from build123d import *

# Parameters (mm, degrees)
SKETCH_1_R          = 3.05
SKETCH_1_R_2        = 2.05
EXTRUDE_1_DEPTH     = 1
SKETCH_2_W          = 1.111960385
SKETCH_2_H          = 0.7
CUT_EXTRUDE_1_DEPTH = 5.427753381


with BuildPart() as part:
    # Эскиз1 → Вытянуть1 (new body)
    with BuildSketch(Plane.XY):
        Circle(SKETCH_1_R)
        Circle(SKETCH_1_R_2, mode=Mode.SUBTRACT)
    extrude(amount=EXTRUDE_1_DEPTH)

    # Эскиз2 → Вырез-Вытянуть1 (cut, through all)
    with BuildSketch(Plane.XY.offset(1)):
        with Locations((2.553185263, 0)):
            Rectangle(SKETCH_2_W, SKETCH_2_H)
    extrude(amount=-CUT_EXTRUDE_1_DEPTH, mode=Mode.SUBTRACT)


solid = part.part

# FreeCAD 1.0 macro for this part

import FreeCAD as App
import Part
import Sketcher
Q = App.Units.Quantity

doc = App.newDocument("Part")
body = doc.addObject("PartDesign::Body", "Body")

sketch1 = doc.addObject("Sketcher::SketchObject", "Sketch")
body.addObject(sketch1)
sketch1.AttachmentSupport = (doc.XY_Plane, [""])
sketch1.MapMode = "FlatFace"
sketch1.addGeometry([
    Part.Circle(App.Vector(0, 0, 0), App.Vector(0, 0, 1), 3),
    Part.Circle(App.Vector(0, 0, 0), App.Vector(0, 0, 1), 2),
], False)
sketch1.addConstraint([
    Sketcher.Constraint("Coincident", 0, 3, -1, 1),
    Sketcher.Constraint("Coincident", 1, 3, -1, 1),
    Sketcher.Constraint("Diameter", 0, Q("6.1 mm")),
    Sketcher.Constraint("Diameter", 1, Q("4.1 mm")),
])
pad1 = doc.addObject("PartDesign::Pad", "Pad")
body.addObject(pad1)
pad1.Profile = sketch1
pad1.Length = 1

sketch2 = doc.addObject("Sketcher::SketchObject", "Sketch001")
body.addObject(sketch2)
sketch2.AttachmentSupport = (doc.XY_Plane, [""])
sketch2.MapMode = "FlatFace"
sketch2.AttachmentOffset = App.Placement(App.Vector(0, 0, 1), App.Rotation())
sketch2.addGeometry([
    Part.LineSegment(App.Vector(2, 0.3, 0), App.Vector(2, -0.3, 0)),
    Part.LineSegment(App.Vector(2, -0.3, 0), App.Vector(3.1, -0.3, 0)),
    Part.LineSegment(App.Vector(3.1, -0.3, 0), App.Vector(3.1, 0.3, 0)),
    Part.LineSegment(App.Vector(3.1, 0.3, 0), App.Vector(2, 0.3, 0)),
], False)
sketch2.addConstraint([
    Sketcher.Constraint("Coincident", 0, 2, 1, 1),
    Sketcher.Constraint("Coincident", 1, 2, 2, 1),
    Sketcher.Constraint("Coincident", 2, 2, 3, 1),
    Sketcher.Constraint("Coincident", 3, 2, 0, 1),
    Sketcher.Constraint("Vertical", 0),
    Sketcher.Constraint("Horizontal", 1),
    Sketcher.Constraint("Vertical", 2),
    Sketcher.Constraint("Horizontal", 3),
    Sketcher.Constraint("DistanceY", 0, 2, 0, 1, Q("0.7 mm")),
    Sketcher.Constraint("DistanceY", 0, 2, -1, 1, Q("0.35 mm")),
    Sketcher.Constraint("DistanceX", 1, 1, 1, 2, Q("1.11196 mm")),
    Sketcher.Constraint("DistanceX", -1, 1, 0, 2, Q("1.997205 mm")),
])
pocket1 = doc.addObject("PartDesign::Pocket", "Pocket")
body.addObject(pocket1)
pocket1.Profile = sketch2
pocket1.Type = "ThroughAll"

doc.recompute()
